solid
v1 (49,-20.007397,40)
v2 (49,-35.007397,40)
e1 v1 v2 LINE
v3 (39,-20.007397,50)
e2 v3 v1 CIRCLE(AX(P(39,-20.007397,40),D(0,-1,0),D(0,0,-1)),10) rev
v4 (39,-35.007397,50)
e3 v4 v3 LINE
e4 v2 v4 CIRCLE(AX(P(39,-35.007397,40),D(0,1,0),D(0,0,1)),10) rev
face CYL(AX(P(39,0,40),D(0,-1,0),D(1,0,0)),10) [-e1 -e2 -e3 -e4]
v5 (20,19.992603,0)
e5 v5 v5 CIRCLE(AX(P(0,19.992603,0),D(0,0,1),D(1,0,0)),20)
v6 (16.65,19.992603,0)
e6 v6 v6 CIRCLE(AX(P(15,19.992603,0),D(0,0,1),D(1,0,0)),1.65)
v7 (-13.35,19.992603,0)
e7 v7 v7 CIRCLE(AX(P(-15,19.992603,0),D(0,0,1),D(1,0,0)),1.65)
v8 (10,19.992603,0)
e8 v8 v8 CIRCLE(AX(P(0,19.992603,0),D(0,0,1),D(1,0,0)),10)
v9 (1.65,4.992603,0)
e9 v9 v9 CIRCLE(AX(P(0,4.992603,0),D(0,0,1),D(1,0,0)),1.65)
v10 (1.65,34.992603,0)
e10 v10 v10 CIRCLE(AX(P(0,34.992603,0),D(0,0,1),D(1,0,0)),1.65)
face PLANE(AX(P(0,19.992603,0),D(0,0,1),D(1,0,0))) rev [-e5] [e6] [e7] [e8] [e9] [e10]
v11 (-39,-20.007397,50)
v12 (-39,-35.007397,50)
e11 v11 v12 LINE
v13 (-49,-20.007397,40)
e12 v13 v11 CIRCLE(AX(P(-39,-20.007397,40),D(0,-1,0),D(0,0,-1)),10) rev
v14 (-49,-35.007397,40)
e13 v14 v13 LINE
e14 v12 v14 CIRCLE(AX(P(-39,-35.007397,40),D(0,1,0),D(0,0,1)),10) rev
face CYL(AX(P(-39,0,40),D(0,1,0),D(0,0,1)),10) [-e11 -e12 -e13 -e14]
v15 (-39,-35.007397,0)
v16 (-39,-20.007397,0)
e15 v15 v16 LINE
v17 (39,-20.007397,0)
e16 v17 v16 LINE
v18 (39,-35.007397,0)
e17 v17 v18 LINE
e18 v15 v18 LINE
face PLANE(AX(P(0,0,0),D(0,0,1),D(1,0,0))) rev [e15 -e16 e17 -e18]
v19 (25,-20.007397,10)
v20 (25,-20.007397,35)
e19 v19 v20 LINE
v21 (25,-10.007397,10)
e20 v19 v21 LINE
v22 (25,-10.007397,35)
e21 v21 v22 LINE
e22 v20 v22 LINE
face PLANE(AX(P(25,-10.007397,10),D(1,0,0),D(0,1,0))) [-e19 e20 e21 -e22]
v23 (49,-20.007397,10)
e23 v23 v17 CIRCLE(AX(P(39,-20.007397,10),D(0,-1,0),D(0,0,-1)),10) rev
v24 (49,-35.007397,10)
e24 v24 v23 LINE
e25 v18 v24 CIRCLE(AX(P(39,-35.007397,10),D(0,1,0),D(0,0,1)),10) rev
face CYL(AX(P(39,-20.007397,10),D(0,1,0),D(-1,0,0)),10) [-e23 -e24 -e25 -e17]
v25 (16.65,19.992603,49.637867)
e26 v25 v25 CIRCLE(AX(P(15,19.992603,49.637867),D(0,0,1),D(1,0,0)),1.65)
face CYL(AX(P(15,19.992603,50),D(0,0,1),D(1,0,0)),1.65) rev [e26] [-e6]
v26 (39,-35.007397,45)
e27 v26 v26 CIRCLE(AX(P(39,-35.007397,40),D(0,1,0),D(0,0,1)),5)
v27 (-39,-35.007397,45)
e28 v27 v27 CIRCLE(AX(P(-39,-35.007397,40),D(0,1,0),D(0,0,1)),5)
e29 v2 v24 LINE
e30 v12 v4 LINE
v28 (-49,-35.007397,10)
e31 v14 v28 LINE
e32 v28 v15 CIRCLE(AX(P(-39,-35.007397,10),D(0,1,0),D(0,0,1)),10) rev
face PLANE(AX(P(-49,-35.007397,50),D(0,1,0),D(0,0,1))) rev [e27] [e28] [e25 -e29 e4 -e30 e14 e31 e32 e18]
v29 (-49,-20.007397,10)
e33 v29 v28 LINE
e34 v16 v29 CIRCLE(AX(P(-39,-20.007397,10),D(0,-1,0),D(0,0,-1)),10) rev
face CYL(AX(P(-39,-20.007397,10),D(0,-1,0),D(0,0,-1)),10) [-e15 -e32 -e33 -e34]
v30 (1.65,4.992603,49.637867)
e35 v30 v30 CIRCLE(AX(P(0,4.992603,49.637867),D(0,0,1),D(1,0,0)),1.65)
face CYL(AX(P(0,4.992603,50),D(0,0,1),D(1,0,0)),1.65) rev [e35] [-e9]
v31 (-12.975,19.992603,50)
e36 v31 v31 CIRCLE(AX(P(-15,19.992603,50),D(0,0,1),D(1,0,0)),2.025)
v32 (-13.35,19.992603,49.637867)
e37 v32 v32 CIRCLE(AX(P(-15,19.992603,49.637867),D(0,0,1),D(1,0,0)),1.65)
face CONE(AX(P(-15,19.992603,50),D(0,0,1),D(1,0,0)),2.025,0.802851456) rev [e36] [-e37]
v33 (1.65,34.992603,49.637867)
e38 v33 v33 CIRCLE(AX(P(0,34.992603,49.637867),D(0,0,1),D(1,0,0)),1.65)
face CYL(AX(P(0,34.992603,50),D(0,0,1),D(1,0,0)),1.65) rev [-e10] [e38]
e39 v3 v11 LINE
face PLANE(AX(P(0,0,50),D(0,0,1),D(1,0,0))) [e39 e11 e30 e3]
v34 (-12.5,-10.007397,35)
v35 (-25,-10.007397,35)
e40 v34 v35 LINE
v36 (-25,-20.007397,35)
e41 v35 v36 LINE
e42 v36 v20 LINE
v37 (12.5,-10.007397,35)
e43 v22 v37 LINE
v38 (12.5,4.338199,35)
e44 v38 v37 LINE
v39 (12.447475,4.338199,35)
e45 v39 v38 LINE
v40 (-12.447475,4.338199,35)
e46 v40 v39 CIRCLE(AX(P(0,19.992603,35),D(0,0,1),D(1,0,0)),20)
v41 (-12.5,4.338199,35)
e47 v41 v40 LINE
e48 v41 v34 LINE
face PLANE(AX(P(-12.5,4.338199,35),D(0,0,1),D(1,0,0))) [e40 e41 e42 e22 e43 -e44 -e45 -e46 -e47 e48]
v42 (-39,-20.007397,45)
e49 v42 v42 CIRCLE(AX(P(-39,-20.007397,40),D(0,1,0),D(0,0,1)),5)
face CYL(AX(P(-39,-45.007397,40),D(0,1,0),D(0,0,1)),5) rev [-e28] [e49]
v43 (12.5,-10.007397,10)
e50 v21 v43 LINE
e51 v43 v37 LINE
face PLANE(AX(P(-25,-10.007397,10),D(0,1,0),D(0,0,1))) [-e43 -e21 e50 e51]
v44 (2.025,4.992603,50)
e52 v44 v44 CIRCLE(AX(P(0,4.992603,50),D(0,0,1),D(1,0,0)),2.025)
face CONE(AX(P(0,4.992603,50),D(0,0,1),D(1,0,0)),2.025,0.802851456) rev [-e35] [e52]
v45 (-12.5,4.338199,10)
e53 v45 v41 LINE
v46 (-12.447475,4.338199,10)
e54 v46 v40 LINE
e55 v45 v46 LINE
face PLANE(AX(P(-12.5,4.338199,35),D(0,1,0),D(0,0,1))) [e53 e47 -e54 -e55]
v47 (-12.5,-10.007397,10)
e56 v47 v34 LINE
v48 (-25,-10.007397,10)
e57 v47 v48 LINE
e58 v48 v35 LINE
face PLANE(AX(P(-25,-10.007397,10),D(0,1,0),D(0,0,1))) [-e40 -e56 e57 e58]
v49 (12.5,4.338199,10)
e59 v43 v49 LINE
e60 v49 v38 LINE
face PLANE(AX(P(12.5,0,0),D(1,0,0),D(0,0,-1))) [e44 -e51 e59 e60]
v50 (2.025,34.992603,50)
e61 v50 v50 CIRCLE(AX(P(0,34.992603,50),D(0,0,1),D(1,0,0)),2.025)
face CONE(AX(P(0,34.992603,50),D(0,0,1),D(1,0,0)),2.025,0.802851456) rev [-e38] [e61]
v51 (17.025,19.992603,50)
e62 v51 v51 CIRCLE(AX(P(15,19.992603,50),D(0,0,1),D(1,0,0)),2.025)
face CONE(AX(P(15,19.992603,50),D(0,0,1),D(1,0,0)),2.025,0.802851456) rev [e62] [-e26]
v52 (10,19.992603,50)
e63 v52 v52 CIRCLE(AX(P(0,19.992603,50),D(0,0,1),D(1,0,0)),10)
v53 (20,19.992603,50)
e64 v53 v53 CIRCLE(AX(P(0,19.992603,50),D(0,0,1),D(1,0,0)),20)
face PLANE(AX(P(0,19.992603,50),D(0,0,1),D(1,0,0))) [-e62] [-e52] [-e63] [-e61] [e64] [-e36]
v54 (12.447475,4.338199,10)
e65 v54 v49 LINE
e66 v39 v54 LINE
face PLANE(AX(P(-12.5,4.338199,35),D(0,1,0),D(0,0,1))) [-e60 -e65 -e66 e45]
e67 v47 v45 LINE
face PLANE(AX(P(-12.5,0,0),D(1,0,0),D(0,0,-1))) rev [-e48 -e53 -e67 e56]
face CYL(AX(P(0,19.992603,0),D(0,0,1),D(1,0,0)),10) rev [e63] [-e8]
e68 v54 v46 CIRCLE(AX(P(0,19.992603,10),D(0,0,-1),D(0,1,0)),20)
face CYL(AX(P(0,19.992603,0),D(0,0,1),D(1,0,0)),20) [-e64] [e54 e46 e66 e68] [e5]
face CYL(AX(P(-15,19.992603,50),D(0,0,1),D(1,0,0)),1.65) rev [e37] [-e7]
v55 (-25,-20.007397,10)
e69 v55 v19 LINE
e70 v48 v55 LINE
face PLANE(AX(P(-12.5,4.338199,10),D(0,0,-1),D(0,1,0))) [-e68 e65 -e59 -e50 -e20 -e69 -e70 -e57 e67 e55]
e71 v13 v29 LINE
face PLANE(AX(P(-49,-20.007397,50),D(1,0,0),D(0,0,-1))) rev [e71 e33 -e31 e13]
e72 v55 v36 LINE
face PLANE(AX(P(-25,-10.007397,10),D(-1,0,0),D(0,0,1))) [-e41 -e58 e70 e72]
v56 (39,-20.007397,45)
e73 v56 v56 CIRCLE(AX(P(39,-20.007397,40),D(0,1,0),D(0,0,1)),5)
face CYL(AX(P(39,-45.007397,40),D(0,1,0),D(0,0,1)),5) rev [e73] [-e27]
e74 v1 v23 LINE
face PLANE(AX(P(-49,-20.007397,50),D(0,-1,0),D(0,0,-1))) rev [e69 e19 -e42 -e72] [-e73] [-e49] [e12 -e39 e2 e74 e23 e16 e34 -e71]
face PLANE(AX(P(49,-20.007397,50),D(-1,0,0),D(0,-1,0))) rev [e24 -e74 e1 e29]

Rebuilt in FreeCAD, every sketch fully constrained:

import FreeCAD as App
import Part
import Sketcher
from FreeCAD import Vector
Q = App.Units.Quantity


def edges_at(feature, points):
    """Names of the edges that pass closest to the given points."""
    edges = feature.Shape.Edges
    near = lambda p: min(range(len(edges)), key=lambda i: edges[i].distToShape(Part.Vertex(*p))[0])
    return sorted({f"Edge{near(p) + 1}" for p in points})

doc = App.newDocument("Part")
body = doc.addObject("PartDesign::Body", "Body")

# Sketch on XY plane
sketch1 = body.newObject("Sketcher::SketchObject", "Sketch")
sketch1.AttachmentSupport = (doc.getObject("XY_Plane"), [""])
sketch1.MapMode = "FlatFace"
sketch1.addGeometry([
    Part.LineSegment(Vector(-49, -20, 0), Vector(-49, -35, 0)),
    Part.LineSegment(Vector(-49, -35, 0), Vector(49, -35, 0)),
    Part.LineSegment(Vector(49, -35, 0), Vector(49, -20, 0)),
    Part.LineSegment(Vector(49, -20, 0), Vector(-49, -20, 0)),
], False)
sketch1.addConstraint([
    Sketcher.Constraint("Coincident", 0, 2, 1, 1),
    Sketcher.Constraint("Coincident", 1, 2, 2, 1),
    Sketcher.Constraint("Coincident", 2, 2, 3, 1),
    Sketcher.Constraint("Coincident", 3, 2, 0, 1),
    Sketcher.Constraint("Vertical", 0),
    Sketcher.Constraint("Horizontal", 1),
    Sketcher.Constraint("Vertical", 2),
    Sketcher.Constraint("Horizontal", 3),
    Sketcher.Constraint("DistanceX", 1, 1, 1, 2, Q("98 mm")),
    Sketcher.Constraint("DistanceY", 0, 2, 0, 1, Q("15 mm")),
    Sketcher.Constraint("DistanceX", 0, 2, -1, 1, Q("49 mm")),
    Sketcher.Constraint("DistanceY", 0, 2, -1, 1, Q("35.007397 mm")),
])
pad1 = body.newObject("PartDesign::Pad", "Pad")
pad1.Profile = sketch1
pad1.Length = 50
body2 = doc.addObject("PartDesign::Body", "Body001")

# Sketch on XY plane
sketch2 = body2.newObject("Sketcher::SketchObject", "Sketch001")
sketch2.AttachmentSupport = (doc.getObject("XY_Plane001"), [""])
sketch2.MapMode = "FlatFace"
sketch2.AttachmentOffset = App.Placement(Vector(0, 0, 50), App.Rotation())
sketch2.addGeometry([
    Part.Circle(Vector(0, 20, 0), Vector(0, 0, 1), 20),
    Part.Circle(Vector(0, 20, 0), Vector(0, 0, 1), 10),
], False)
sketch2.addConstraint([
    Sketcher.Constraint("Coincident", 1, 3, 0, 3),
    Sketcher.Constraint("PointOnObject", 0, 3, -2),
    Sketcher.Constraint("Diameter", 0, Q("40 mm")),
    Sketcher.Constraint("Diameter", 1, Q("20 mm")),
    Sketcher.Constraint("DistanceY", -1, 1, 0, 3, Q("19.992603 mm")),
])
pad2 = body2.newObject("PartDesign::Pad", "Pad001")
pad2.Profile = sketch2
pad2.Length = 50
pad2.Reversed = True
body.AllowCompound = True
doc.recompute()

boolean = body.newObject("PartDesign::Boolean", "Boolean")
boolean.Type = "Fuse"
boolean.addObjects([body2])

# Sketch on YZ plane
sketch3 = body.newObject("Sketcher::SketchObject", "Sketch002")
sketch3.AttachmentSupport = (doc.getObject("YZ_Plane"), [""])
sketch3.MapMode = "FlatFace"
sketch3.addGeometry([
    Part.LineSegment(Vector(4, 35, 0), Vector(-20, 35, 0)),
    Part.LineSegment(Vector(-20, 35, 0), Vector(-20, 10, 0)),
    Part.LineSegment(Vector(-20, 10, 0), Vector(4, 10, 0)),
    Part.LineSegment(Vector(4, 10, 0), Vector(4, 35, 0)),
], False)
sketch3.addConstraint([
    Sketcher.Constraint("Coincident", 0, 2, 1, 1),
    Sketcher.Constraint("Coincident", 1, 2, 2, 1),
    Sketcher.Constraint("Coincident", 2, 2, 3, 1),
    Sketcher.Constraint("Coincident", 3, 2, 0, 1),
    Sketcher.Constraint("Horizontal", 0),
    Sketcher.Constraint("Vertical", 1),
    Sketcher.Constraint("Horizontal", 2),
    Sketcher.Constraint("Vertical", 3),
    Sketcher.Constraint("DistanceY", 1, 2, 1, 1, Q("25 mm")),
    Sketcher.Constraint("DistanceY", -1, 1, 0, 2, Q("35 mm")),
    Sketcher.Constraint("DistanceX", -1, 1, 2, 2, Q("4.338199 mm")),
    Sketcher.Constraint("DistanceX", 0, 2, 0, 1, Q("24.345596 mm")),
])
pad3 = body.newObject("PartDesign::Pad", "Pad002")
pad3.Profile = sketch3
pad3.Length = 25
pad3.Midplane = True
doc.recompute()

fillet = body.newObject("PartDesign::Fillet", "Fillet")
fillet.Base = (pad3, edges_at(pad3, [
    (-49, -27.507, 50),
    (49, -27.507, 50),
    (-49, -27.507, 0),
    (49, -27.507, 0),
]))
fillet.Radius = 10

# Sketch on XZ plane
sketch4 = body.newObject("Sketcher::SketchObject", "Sketch003")
sketch4.AttachmentSupport = (doc.getObject("XZ_Plane"), [""])
sketch4.MapMode = "FlatFace"
sketch4.AttachmentOffset = App.Placement(Vector(0, 0, 20.007397), App.Rotation())
sketch4.addGeometry([
    Part.Circle(Vector(-39, 40, 0), Vector(0, 0, 1), 5),
    Part.Circle(Vector(39, 40, 0), Vector(0, 0, 1), 5),
], False)
sketch4.addConstraint([
    Sketcher.Constraint("Equal", 0, 1),
    Sketcher.Constraint("Symmetric", 0, 3, 1, 3, -2),
    Sketcher.Constraint("Diameter", 0, Q("10 mm")),
    Sketcher.Constraint("DistanceX", 0, 3, -1, 1, Q("39 mm")),
    Sketcher.Constraint("DistanceY", -1, 1, 0, 3, Q("40 mm")),
])
pocket1 = body.newObject("PartDesign::Pocket", "Pocket")
pocket1.Profile = sketch4
pocket1.Length = 25
pocket1.Reversed = True

# Sketch on XY plane
sketch5 = body.newObject("Sketcher::SketchObject", "Sketch004")
sketch5.AttachmentSupport = (doc.getObject("XY_Plane"), [""])
sketch5.MapMode = "FlatFace"
sketch5.AttachmentOffset = App.Placement(Vector(0, 0, 50), App.Rotation())
sketch5.addGeometry([
    Part.Circle(Vector(0, 35, 0), Vector(0, 0, 1), 1.6),
    Part.Circle(Vector(-15, 20, 0), Vector(0, 0, 1), 1.6),
    Part.Circle(Vector(15, 20, 0), Vector(0, 0, 1), 1.6),
    Part.Circle(Vector(0, 5, 0), Vector(0, 0, 1), 1.6),
], False)
sketch5.addConstraint([
    Sketcher.Constraint("Equal", 0, 1),
    Sketcher.Constraint("Equal", 1, 2),
    Sketcher.Constraint("Equal", 2, 3),
    Sketcher.Constraint("Symmetric", 1, 3, 2, 3, -2),
    Sketcher.Constraint("PointOnObject", 0, 3, -2),
    Sketcher.Constraint("PointOnObject", 3, 3, -2),
    Sketcher.Constraint("Diameter", 0, Q("3.3 mm")),
    Sketcher.Constraint("DistanceX", 1, 3, -1, 1, Q("15 mm")),
    Sketcher.Constraint("DistanceY", 1, 3, 0, 3, Q("15 mm")),
    Sketcher.Constraint("DistanceY", 3, 3, 1, 3, Q("15 mm")),
    Sketcher.Constraint("DistanceY", -1, 1, 0, 3, Q("34.992603 mm")),
])
doc.recompute()
hole = body.newObject("PartDesign::Hole", "Hole")
hole.Profile = sketch5
hole.ThreadType = "None"
hole.Diameter = 3.3
hole.DepthType = "ThroughAll"
hole.HoleCutType = "Countersink"
hole.HoleCutDiameter = 4.05
hole.HoleCutCountersinkAngle = 92

# Sketch on XY plane
sketch6 = body.newObject("Sketcher::SketchObject", "Sketch005")
sketch6.AttachmentSupport = (doc.getObject("XY_Plane"), [""])
sketch6.MapMode = "FlatFace"
sketch6.AttachmentOffset = App.Placement(Vector(0, 0, 35), App.Rotation())
sketch6.addGeometry([
    Part.LineSegment(Vector(-25, -10, 0), Vector(-25, -20, 0)),
    Part.LineSegment(Vector(-25, -20, 0), Vector(25, -20, 0)),
    Part.LineSegment(Vector(25, -20, 0), Vector(25, -10, 0)),
    Part.LineSegment(Vector(25, -10, 0), Vector(-25, -10, 0)),
], False)
sketch6.addConstraint([
    Sketcher.Constraint("Coincident", 0, 2, 1, 1),
    Sketcher.Constraint("Coincident", 1, 2, 2, 1),
    Sketcher.Constraint("Coincident", 2, 2, 3, 1),
    Sketcher.Constraint("Coincident", 3, 2, 0, 1),
    Sketcher.Constraint("Vertical", 0),
    Sketcher.Constraint("Horizontal", 1),
    Sketcher.Constraint("Vertical", 2),
    Sketcher.Constraint("Horizontal", 3),
    Sketcher.Constraint("DistanceX", 1, 1, 1, 2, Q("50 mm")),
    Sketcher.Constraint("DistanceY", 0, 2, 0, 1, Q("10 mm")),
    Sketcher.Constraint("DistanceX", 0, 2, -1, 1, Q("25 mm")),
    Sketcher.Constraint("DistanceY", 0, 2, -1, 1, Q("20.007397 mm")),
])
pad4 = body.newObject("PartDesign::Pad", "Pad003")
pad4.Profile = sketch6
pad4.Length = 25
pad4.Reversed = True

doc.recompute()
